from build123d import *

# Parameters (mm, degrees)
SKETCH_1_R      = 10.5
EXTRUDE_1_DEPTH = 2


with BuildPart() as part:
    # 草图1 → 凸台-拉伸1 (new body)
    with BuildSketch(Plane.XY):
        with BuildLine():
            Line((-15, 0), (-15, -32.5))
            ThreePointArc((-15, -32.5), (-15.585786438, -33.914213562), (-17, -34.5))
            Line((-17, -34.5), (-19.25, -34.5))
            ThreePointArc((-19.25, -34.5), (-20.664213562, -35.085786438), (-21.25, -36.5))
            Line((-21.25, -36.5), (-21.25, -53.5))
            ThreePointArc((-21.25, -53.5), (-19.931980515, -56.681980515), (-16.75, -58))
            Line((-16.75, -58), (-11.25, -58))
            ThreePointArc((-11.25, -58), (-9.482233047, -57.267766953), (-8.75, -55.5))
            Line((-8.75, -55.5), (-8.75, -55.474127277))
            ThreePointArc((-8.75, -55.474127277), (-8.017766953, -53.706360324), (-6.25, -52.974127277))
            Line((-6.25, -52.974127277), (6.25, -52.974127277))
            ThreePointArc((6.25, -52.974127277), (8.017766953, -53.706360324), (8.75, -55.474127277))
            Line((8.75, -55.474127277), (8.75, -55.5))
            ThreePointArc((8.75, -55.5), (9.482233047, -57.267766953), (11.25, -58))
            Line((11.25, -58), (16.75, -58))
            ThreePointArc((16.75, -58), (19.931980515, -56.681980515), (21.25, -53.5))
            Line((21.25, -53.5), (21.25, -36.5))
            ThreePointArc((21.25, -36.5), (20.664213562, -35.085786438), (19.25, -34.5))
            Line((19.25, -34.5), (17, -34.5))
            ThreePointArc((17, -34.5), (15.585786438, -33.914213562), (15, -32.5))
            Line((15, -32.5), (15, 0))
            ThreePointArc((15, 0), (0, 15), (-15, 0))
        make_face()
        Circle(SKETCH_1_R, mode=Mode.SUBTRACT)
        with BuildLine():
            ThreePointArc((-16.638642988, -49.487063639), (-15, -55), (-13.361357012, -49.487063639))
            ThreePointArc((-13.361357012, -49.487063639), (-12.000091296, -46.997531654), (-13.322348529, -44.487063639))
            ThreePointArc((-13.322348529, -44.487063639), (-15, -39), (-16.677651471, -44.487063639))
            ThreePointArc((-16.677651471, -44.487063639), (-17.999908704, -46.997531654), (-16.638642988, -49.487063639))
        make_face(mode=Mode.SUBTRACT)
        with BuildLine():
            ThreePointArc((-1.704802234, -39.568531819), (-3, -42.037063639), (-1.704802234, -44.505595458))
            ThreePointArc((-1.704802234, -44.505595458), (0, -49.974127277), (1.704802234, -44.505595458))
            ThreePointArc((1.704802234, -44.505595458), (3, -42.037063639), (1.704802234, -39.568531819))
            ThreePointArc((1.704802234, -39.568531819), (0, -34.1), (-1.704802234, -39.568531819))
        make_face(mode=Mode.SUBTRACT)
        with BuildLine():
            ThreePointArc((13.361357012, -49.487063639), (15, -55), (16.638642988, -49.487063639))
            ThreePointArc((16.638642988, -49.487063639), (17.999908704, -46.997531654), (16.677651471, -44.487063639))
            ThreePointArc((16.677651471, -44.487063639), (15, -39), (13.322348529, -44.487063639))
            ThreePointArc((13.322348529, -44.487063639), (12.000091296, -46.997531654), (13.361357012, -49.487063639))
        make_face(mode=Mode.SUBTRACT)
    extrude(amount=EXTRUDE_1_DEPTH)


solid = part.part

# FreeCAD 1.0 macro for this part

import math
import FreeCAD as App
import Part
import Sketcher
Q = App.Units.Quantity

doc = App.newDocument("Part")
body = doc.addObject("PartDesign::Body", "Body")

# Sketch on XY plane
sketch1 = doc.addObject("Sketcher::SketchObject", "Sketch")
body.addObject(sketch1)
sketch1.AttachmentSupport = (doc.XY_Plane, [""])
sketch1.MapMode = "FlatFace"
sketch1.addGeometry(Part.LineSegment(App.Vector(-15, 0, 0), App.Vector(-15, -32.5, 0)), False)
sketch1.addGeometry(Part.ArcOfCircle(Part.Circle(App.Vector(-17, -32.5, 0), App.Vector(0, 0, 1), 2), math.radians(-90), math.radians(0)), False)
sketch1.addGeometry(Part.LineSegment(App.Vector(-17, -34.5, 0), App.Vector(-19.25, -34.5, 0)), False)
sketch1.addGeometry(Part.ArcOfCircle(Part.Circle(App.Vector(-19.25, -36.5, 0), App.Vector(0, 0, 1), 2), math.radians(90), math.radians(180)), False)
sketch1.addGeometry(Part.LineSegment(App.Vector(-21.25, -36.5, 0), App.Vector(-21.25, -53.5, 0)), False)
sketch1.addGeometry(Part.ArcOfCircle(Part.Circle(App.Vector(-16.75, -53.5, 0), App.Vector(0, 0, 1), 4.5), math.radians(-180), math.radians(-90)), False)
sketch1.addGeometry(Part.LineSegment(App.Vector(-16.75, -58, 0), App.Vector(-11.25, -58, 0)), False)
sketch1.addGeometry(Part.ArcOfCircle(Part.Circle(App.Vector(-11.25, -55.5, 0), App.Vector(0, 0, 1), 2.5), math.radians(-90), math.radians(0)), False)
sketch1.addGeometry(Part.LineSegment(App.Vector(-8.75, -55.5, 0), App.Vector(-8.75, -55.474127, 0)), False)
sketch1.addGeometry(Part.ArcOfCircle(Part.Circle(App.Vector(-6.25, -55.474127, 0), App.Vector(0, 0, 1), 2.5), math.radians(90), math.radians(180)), False)
sketch1.addGeometry(Part.LineSegment(App.Vector(-6.25, -52.974127, 0), App.Vector(6.25, -52.974127, 0)), False)
sketch1.addGeometry(Part.ArcOfCircle(Part.Circle(App.Vector(6.25, -55.474127, 0), App.Vector(0, 0, 1), 2.5), math.radians(0), math.radians(90)), False)
sketch1.addGeometry(Part.LineSegment(App.Vector(8.75, -55.474127, 0), App.Vector(8.75, -55.5, 0)), False)
sketch1.addGeometry(Part.ArcOfCircle(Part.Circle(App.Vector(11.25, -55.5, 0), App.Vector(0, 0, 1), 2.5), math.radians(180), math.radians(270)), False)
sketch1.addGeometry(Part.LineSegment(App.Vector(11.25, -58, 0), App.Vector(16.75, -58, 0)), False)
sketch1.addGeometry(Part.ArcOfCircle(Part.Circle(App.Vector(16.75, -53.5, 0), App.Vector(0, 0, 1), 4.5), math.radians(-90), math.radians(0)), False)
sketch1.addGeometry(Part.LineSegment(App.Vector(21.25, -53.5, 0), App.Vector(21.25, -36.5, 0)), False)
sketch1.addGeometry(Part.ArcOfCircle(Part.Circle(App.Vector(19.25, -36.5, 0), App.Vector(0, 0, 1), 2), math.radians(0), math.radians(90)), False)
sketch1.addGeometry(Part.LineSegment(App.Vector(19.25, -34.5, 0), App.Vector(17, -34.5, 0)), False)
sketch1.addGeometry(Part.ArcOfCircle(Part.Circle(App.Vector(17, -32.5, 0), App.Vector(0, 0, 1), 2), math.radians(-180), math.radians(-90)), False)
sketch1.addGeometry(Part.LineSegment(App.Vector(15, -32.5, 0), App.Vector(15, 0, 0)), False)
sketch1.addGeometry(Part.ArcOfCircle(Part.Circle(App.Vector(0, 0, 0), App.Vector(0, 0, 1), 15), math.radians(0), math.radians(180)), False)
sketch1.addGeometry(Part.ArcOfCircle(Part.Circle(App.Vector(-15, -52, 0), App.Vector(0, 0, 1), 3), math.radians(123.107686), math.radians(416.892314)), False)
sketch1.addGeometry(Part.ArcOfCircle(Part.Circle(App.Vector(-15, -46.974127, 0), App.Vector(0, 0, 1), 3), math.radians(124.001676), math.radians(236.892314)), False)
sketch1.addGeometry(Part.ArcOfCircle(Part.Circle(App.Vector(-15, -42, 0), App.Vector(0, 0, 1), 3), math.radians(-55.998324), math.radians(235.998324)), False)
sketch1.addGeometry(Part.ArcOfCircle(Part.Circle(App.Vector(-15, -46.974127, 0), App.Vector(0, 0, 1), 3), math.radians(-56.892314), math.radians(55.998324)), False)
sketch1.addGeometry(Part.ArcOfCircle(Part.Circle(App.Vector(0, -42.037064, 0), App.Vector(0, 0, 1), 3), math.radians(124.629495), math.radians(235.370505)), False)
sketch1.addGeometry(Part.ArcOfCircle(Part.Circle(App.Vector(0, -37.1, 0), App.Vector(0, 0, 1), 3), math.radians(-55.370505), math.radians(235.370505)), False)
sketch1.addGeometry(Part.ArcOfCircle(Part.Circle(App.Vector(0, -42.037064, 0), App.Vector(0, 0, 1), 3), math.radians(-55.370505), math.radians(55.370505)), False)
sketch1.addGeometry(Part.ArcOfCircle(Part.Circle(App.Vector(0, -46.974127, 0), App.Vector(0, 0, 1), 3), math.radians(124.629495), math.radians(415.370505)), False)
sketch1.addGeometry(Part.ArcOfCircle(Part.Circle(App.Vector(15, -52, 0), App.Vector(0, 0, 1), 3), math.radians(123.107686), math.radians(416.892314)), False)
sketch1.addGeometry(Part.ArcOfCircle(Part.Circle(App.Vector(15, -46.974127, 0), App.Vector(0, 0, 1), 3), math.radians(124.001676), math.radians(236.892314)), False)
sketch1.addGeometry(Part.ArcOfCircle(Part.Circle(App.Vector(15, -42, 0), App.Vector(0, 0, 1), 3), math.radians(-55.998324), math.radians(235.998324)), False)
sketch1.addGeometry(Part.ArcOfCircle(Part.Circle(App.Vector(15, -46.974127, 0), App.Vector(0, 0, 1), 3), math.radians(-56.892314), math.radians(55.998324)), False)
sketch1.addGeometry(Part.Circle(App.Vector(0, 0, 0), App.Vector(0, 0, 1), 10.5), False)
sketch1.addConstraint(Sketcher.Constraint("Tangent", 0, 2, 1, 2))
sketch1.addConstraint(Sketcher.Constraint("Tangent", 1, 1, 2, 1))
sketch1.addConstraint(Sketcher.Constraint("Tangent", 2, 2, 3, 1))
sketch1.addConstraint(Sketcher.Constraint("Tangent", 3, 2, 4, 1))
sketch1.addConstraint(Sketcher.Constraint("Tangent", 4, 2, 5, 1))
sketch1.addConstraint(Sketcher.Constraint("Tangent", 5, 2, 6, 1))
sketch1.addConstraint(Sketcher.Constraint("Tangent", 6, 2, 7, 1))
sketch1.addConstraint(Sketcher.Constraint("Tangent", 7, 2, 8, 1))
sketch1.addConstraint(Sketcher.Constraint("Tangent", 8, 2, 9, 2))
sketch1.addConstraint(Sketcher.Constraint("Tangent", 9, 1, 10, 1))
sketch1.addConstraint(Sketcher.Constraint("Tangent", 10, 2, 11, 2))
sketch1.addConstraint(Sketcher.Constraint("Tangent", 11, 1, 12, 1))
sketch1.addConstraint(Sketcher.Constraint("Tangent", 12, 2, 13, 1))
sketch1.addConstraint(Sketcher.Constraint("Tangent", 13, 2, 14, 1))
sketch1.addConstraint(Sketcher.Constraint("Tangent", 14, 2, 15, 1))
sketch1.addConstraint(Sketcher.Constraint("Tangent", 15, 2, 16, 1))
sketch1.addConstraint(Sketcher.Constraint("Tangent", 16, 2, 17, 1))
sketch1.addConstraint(Sketcher.Constraint("Tangent", 17, 2, 18, 1))
sketch1.addConstraint(Sketcher.Constraint("Tangent", 18, 2, 19, 2))
sketch1.addConstraint(Sketcher.Constraint("Tangent", 19, 1, 20, 1))
sketch1.addConstraint(Sketcher.Constraint("Tangent", 20, 2, 21, 1))
sketch1.addConstraint(Sketcher.Constraint("Tangent", 21, 2, 0, 1))
sketch1.addConstraint(Sketcher.Constraint("Coincident", 22, 1, 23, 2))
sketch1.addConstraint(Sketcher.Constraint("Coincident", 23, 1, 24, 2))
sketch1.addConstraint(Sketcher.Constraint("Coincident", 24, 1, 25, 2))
sketch1.addConstraint(Sketcher.Constraint("Coincident", 25, 1, 22, 2))
sketch1.addConstraint(Sketcher.Constraint("Coincident", 26, 1, 27, 2))
sketch1.addConstraint(Sketcher.Constraint("Coincident", 27, 1, 28, 2))
sketch1.addConstraint(Sketcher.Constraint("Coincident", 28, 1, 29, 2))
sketch1.addConstraint(Sketcher.Constraint("Coincident", 29, 1, 26, 2))
sketch1.addConstraint(Sketcher.Constraint("Coincident", 30, 1, 31, 2))
sketch1.addConstraint(Sketcher.Constraint("Coincident", 31, 1, 32, 2))
sketch1.addConstraint(Sketcher.Constraint("Coincident", 32, 1, 33, 2))
sketch1.addConstraint(Sketcher.Constraint("Coincident", 33, 1, 30, 2))
sketch1.addConstraint(Sketcher.Constraint("Vertical", 0))
sketch1.addConstraint(Sketcher.Constraint("Horizontal", 2))
sketch1.addConstraint(Sketcher.Constraint("Vertical", 4))
sketch1.addConstraint(Sketcher.Constraint("Horizontal", 6))
sketch1.addConstraint(Sketcher.Constraint("Vertical", 8))
sketch1.addConstraint(Sketcher.Constraint("Horizontal", 10))
sketch1.addConstraint(Sketcher.Constraint("Vertical", 12))
sketch1.addConstraint(Sketcher.Constraint("Horizontal", 14))
sketch1.addConstraint(Sketcher.Constraint("Vertical", 16))
sketch1.addConstraint(Sketcher.Constraint("Horizontal", 18))
sketch1.addConstraint(Sketcher.Constraint("Vertical", 20))
sketch1.addConstraint(Sketcher.Constraint("Coincident", 21, 3, -1, 1))
sketch1.addConstraint(Sketcher.Constraint("Coincident", 34, 3, -1, 1))
sketch1.addConstraint(Sketcher.Constraint("Coincident", 25, 3, 23, 3))
sketch1.addConstraint(Sketcher.Constraint("Coincident", 28, 3, 26, 3))
sketch1.addConstraint(Sketcher.Constraint("Coincident", 33, 3, 31, 3))
sketch1.addConstraint(Sketcher.Constraint("Equal", 1, 3))
sketch1.addConstraint(Sketcher.Constraint("Equal", 7, 9))
sketch1.addConstraint(Sketcher.Constraint("Equal", 9, 11))
sketch1.addConstraint(Sketcher.Constraint("Equal", 11, 13))
sketch1.addConstraint(Sketcher.Constraint("Equal", 5, 15))
sketch1.addConstraint(Sketcher.Constraint("Equal", 3, 17))
sketch1.addConstraint(Sketcher.Constraint("Equal", 17, 19))
sketch1.addConstraint(Sketcher.Constraint("Equal", 22, 23))
sketch1.addConstraint(Sketcher.Constraint("Equal", 23, 24))
sketch1.addConstraint(Sketcher.Constraint("Equal", 24, 25))
sketch1.addConstraint(Sketcher.Constraint("Equal", 25, 26))
sketch1.addConstraint(Sketcher.Constraint("Equal", 26, 27))
sketch1.addConstraint(Sketcher.Constraint("Equal", 27, 28))
sketch1.addConstraint(Sketcher.Constraint("Equal", 28, 29))
sketch1.addConstraint(Sketcher.Constraint("Equal", 29, 30))
sketch1.addConstraint(Sketcher.Constraint("Equal", 30, 31))
sketch1.addConstraint(Sketcher.Constraint("Equal", 31, 32))
sketch1.addConstraint(Sketcher.Constraint("Equal", 32, 33))
sketch1.addConstraint(Sketcher.Constraint("Symmetric", 7, 3, 13, 3, -2))
sketch1.addConstraint(Sketcher.Constraint("Symmetric", 3, 3, 17, 3, -2))
sketch1.addConstraint(Sketcher.Constraint("Symmetric", 22, 3, 30, 3, -2))
sketch1.addConstraint(Sketcher.Constraint("Symmetric", 23, 3, 31, 3, -2))
sketch1.addConstraint(Sketcher.Constraint("Symmetric", 24, 3, 32, 3, -2))
sketch1.addConstraint(Sketcher.Constraint("Symmetric", 26, 1, 27, 1, -2))
sketch1.addConstraint(Sketcher.Constraint("PointOnObject", 29, 3, -2))
sketch1.addConstraint(Sketcher.Constraint("Horizontal", 25, 3, 29, 3))
sketch1.addConstraint(Sketcher.Constraint("Horizontal", 23, 1, 24, 1))
sketch1.addConstraint(Sketcher.Constraint("Horizontal", 22, 1, 25, 1))
sketch1.addConstraint(Sketcher.Constraint("Vertical", 25, 3, 0, 2))
sketch1.addConstraint(Sketcher.Constraint("Vertical", 27, 1, 28, 1))
sketch1.addConstraint(Sketcher.Constraint("Diameter", 34, Q("21 mm")))
sketch1.addConstraint(Sketcher.Constraint("Radius", 1, Q("2 mm")))
sketch1.addConstraint(Sketcher.Constraint("Radius", 21, Q("15 mm")))
sketch1.addConstraint(Sketcher.Constraint("Radius", 22, Q("3 mm")))
sketch1.addConstraint(Sketcher.Constraint("Radius", 5, Q("4.5 mm")))
sketch1.addConstraint(Sketcher.Constraint("Radius", 7, Q("2.5 mm")))
sketch1.addConstraint(Sketcher.Constraint("DistanceY", 4, 2, 4, 1, Q("17 mm")))
sketch1.addConstraint(Sketcher.Constraint("DistanceX", 6, 1, 6, 2, Q("5.5 mm")))
sketch1.addConstraint(Sketcher.Constraint("DistanceX", 10, 1, 10, 2, Q("12.5 mm")))
sketch1.addConstraint(Sketcher.Constraint("DistanceY", 0, 2, 0, 1, Q("32.5 mm")))
sketch1.addConstraint(Sketcher.Constraint("DistanceY", 22, 3, -1, 1, Q("52 mm")))
sketch1.addConstraint(Sketcher.Constraint("DistanceY", 24, 3, -1, 1, Q("42 mm")))
sketch1.addConstraint(Sketcher.Constraint("DistanceY", 10, 2, 29, 3, Q("6 mm")))
sketch1.addConstraint(Sketcher.Constraint("DistanceY", 27, 3, -1, 1, Q("37.1 mm")))
sketch1.addConstraint(Sketcher.Constraint("DistanceY", 8, 1, 8, 2, Q("0.025873 mm")))
pad1 = doc.addObject("PartDesign::Pad", "Pad")
body.addObject(pad1)
pad1.Profile = sketch1
pad1.Length = 2

doc.recompute()
